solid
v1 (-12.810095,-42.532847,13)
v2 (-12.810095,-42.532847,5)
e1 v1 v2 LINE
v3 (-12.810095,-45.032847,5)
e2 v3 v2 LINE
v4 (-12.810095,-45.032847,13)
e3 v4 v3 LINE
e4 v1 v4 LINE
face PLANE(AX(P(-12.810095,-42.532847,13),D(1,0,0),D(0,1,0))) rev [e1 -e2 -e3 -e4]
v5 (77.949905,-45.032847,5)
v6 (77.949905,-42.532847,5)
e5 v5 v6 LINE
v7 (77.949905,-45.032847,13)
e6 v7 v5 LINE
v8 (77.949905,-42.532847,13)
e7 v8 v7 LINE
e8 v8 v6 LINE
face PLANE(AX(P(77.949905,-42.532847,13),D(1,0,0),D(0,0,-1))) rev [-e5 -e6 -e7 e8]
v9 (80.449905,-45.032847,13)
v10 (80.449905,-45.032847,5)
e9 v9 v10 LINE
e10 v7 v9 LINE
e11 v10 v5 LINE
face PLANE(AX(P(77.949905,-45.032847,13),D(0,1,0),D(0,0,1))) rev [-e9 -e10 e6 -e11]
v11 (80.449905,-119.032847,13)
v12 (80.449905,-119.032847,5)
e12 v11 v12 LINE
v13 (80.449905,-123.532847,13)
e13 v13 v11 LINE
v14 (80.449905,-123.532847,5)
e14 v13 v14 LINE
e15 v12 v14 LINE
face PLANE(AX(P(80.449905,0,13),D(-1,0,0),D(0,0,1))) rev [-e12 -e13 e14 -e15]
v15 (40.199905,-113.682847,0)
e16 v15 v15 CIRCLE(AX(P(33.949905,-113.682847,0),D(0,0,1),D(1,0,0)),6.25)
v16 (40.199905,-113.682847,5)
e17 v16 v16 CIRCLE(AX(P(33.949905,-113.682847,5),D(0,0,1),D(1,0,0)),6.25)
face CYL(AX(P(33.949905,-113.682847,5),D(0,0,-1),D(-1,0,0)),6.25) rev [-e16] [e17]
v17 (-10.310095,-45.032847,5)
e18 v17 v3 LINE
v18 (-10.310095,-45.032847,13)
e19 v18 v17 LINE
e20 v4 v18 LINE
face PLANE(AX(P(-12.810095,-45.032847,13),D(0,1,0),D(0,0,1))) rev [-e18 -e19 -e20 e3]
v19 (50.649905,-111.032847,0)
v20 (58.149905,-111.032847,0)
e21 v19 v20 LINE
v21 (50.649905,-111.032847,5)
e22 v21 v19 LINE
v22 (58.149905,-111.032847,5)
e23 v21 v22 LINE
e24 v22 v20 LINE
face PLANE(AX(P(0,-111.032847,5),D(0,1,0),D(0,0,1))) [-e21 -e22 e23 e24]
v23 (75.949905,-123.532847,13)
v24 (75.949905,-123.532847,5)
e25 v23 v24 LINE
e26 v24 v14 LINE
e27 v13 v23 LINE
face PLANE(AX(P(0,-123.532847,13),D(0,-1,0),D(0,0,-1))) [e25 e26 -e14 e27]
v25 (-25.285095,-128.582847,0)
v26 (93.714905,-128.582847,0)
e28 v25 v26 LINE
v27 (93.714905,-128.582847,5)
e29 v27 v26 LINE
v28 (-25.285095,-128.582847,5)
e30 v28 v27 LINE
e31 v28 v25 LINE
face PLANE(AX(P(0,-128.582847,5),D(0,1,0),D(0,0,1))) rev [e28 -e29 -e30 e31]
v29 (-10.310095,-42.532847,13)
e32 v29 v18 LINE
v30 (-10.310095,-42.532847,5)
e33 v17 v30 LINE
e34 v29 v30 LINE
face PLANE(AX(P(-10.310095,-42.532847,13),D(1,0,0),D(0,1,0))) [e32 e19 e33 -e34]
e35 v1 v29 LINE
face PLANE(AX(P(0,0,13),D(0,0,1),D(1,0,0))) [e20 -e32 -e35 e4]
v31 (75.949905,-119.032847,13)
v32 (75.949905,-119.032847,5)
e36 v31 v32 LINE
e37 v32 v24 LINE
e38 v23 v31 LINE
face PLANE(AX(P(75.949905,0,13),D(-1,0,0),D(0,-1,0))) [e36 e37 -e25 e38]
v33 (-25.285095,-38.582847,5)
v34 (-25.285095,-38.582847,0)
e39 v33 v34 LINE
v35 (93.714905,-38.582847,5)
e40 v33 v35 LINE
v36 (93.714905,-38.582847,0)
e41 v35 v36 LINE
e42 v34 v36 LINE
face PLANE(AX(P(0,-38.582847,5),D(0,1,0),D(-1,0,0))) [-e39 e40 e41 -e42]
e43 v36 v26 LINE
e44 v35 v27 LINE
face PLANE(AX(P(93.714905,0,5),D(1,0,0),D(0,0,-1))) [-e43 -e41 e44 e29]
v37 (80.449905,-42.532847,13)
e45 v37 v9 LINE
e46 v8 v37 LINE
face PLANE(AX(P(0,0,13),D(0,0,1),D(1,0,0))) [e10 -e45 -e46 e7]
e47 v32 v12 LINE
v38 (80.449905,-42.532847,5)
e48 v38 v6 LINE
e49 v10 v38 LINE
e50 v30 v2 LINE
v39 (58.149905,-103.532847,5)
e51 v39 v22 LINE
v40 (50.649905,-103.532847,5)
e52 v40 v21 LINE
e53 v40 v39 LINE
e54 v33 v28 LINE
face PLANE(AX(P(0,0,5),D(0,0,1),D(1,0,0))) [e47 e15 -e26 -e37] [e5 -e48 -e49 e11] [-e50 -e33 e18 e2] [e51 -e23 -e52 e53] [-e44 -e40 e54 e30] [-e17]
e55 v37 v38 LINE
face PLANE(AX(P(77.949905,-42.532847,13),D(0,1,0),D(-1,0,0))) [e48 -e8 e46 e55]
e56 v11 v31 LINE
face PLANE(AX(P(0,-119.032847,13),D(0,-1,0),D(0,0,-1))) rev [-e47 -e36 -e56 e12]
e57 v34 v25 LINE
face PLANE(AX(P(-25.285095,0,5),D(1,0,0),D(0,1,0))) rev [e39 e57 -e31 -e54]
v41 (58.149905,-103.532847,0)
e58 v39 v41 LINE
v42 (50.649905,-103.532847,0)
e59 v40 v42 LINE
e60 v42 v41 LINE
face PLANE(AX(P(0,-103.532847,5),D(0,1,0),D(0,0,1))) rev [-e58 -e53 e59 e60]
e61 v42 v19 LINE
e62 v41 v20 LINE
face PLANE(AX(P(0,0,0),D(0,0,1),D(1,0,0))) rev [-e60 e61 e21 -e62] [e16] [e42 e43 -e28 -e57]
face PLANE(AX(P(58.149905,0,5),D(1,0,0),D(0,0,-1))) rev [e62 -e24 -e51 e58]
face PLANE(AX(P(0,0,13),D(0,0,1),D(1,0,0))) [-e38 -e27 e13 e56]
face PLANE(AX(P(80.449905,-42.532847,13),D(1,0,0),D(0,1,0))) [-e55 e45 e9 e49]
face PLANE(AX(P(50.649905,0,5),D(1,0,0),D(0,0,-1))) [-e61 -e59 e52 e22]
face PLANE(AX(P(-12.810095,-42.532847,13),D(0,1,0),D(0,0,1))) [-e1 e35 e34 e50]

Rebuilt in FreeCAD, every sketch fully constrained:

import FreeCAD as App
import Part
import Sketcher
from FreeCAD import Vector

doc = App.newDocument("Part")
body = doc.addObject("PartDesign::Body", "Body")

# Sketch on XY plane
sketch1 = body.newObject("Sketcher::SketchObject", "Sketch")
sketch1.AttachmentSupport = (doc.getObject("XY_Plane"), [""])
sketch1.MapMode = "FlatFace"
sketch1.addGeometry(Part.LineSegment(Vector(-25, -39, 0), Vector(-25, -129, 0)), False)
sketch1.addGeometry(Part.LineSegment(Vector(-25, -129, 0), Vector(94, -129, 0)), False)
sketch1.addGeometry(Part.LineSegment(Vector(94, -129, 0), Vector(94, -39, 0)), False)
sketch1.addGeometry(Part.LineSegment(Vector(94, -39, 0), Vector(-25, -39, 0)), False)
sketch1.addGeometry(Part.Circle(Vector(34, -114, 0), Vector(0, 0, 1), 6), False)
sketch1.addGeometry(Part.LineSegment(Vector(58, -111, 0), Vector(51, -111, 0)), False)
sketch1.addGeometry(Part.LineSegment(Vector(51, -111, 0), Vector(51, -104, 0)), False)
sketch1.addGeometry(Part.LineSegment(Vector(51, -104, 0), Vector(58, -104, 0)), False)
sketch1.addGeometry(Part.LineSegment(Vector(58, -104, 0), Vector(58, -111, 0)), False)
sketch1.addConstraint(Sketcher.Constraint("Coincident", 0, 2, 1, 1))
sketch1.addConstraint(Sketcher.Constraint("Coincident", 1, 2, 2, 1))
sketch1.addConstraint(Sketcher.Constraint("Coincident", 2, 2, 3, 1))
sketch1.addConstraint(Sketcher.Constraint("Coincident", 3, 2, 0, 1))
sketch1.addConstraint(Sketcher.Constraint("Coincident", 5, 2, 6, 1))
sketch1.addConstraint(Sketcher.Constraint("Coincident", 6, 2, 7, 1))
sketch1.addConstraint(Sketcher.Constraint("Coincident", 7, 2, 8, 1))
sketch1.addConstraint(Sketcher.Constraint("Coincident", 8, 2, 5, 1))
sketch1.addConstraint(Sketcher.Constraint("Vertical", 0))
sketch1.addConstraint(Sketcher.Constraint("Horizontal", 1))
sketch1.addConstraint(Sketcher.Constraint("Vertical", 2))
sketch1.addConstraint(Sketcher.Constraint("Horizontal", 3))
sketch1.addConstraint(Sketcher.Constraint("Horizontal", 5))
sketch1.addConstraint(Sketcher.Constraint("Vertical", 6))
sketch1.addConstraint(Sketcher.Constraint("Horizontal", 7))
sketch1.addConstraint(Sketcher.Constraint("Vertical", 8))
sketch1.addConstraint(Sketcher.Constraint("Equal", 7, 6))
sketch1.addConstraint(Sketcher.Constraint("Diameter", 4, 12.5))
sketch1.addConstraint(Sketcher.Constraint("DistanceX", 1, 1, 1, 2, 119.0))
sketch1.addConstraint(Sketcher.Constraint("DistanceY", 0, 2, 0, 1, 90.0))
sketch1.addConstraint(Sketcher.Constraint("DistanceX", 5, 2, 5, 1, 7.5))
sketch1.addConstraint(Sketcher.Constraint("DistanceY", 0, 2, 4, 3, 14.9))
sketch1.addConstraint(Sketcher.Constraint("DistanceX", 4, 3, 5, 2, 16.7))
sketch1.addConstraint(Sketcher.Constraint("DistanceY", 4, 3, 5, 2, 2.65))
sketch1.addConstraint(Sketcher.Constraint("DistanceX", 0, 2, 4, 3, 59.235))
sketch1.addConstraint(Sketcher.Constraint("DistanceX", -1, 1, 4, 3, 33.949905))
sketch1.addConstraint(Sketcher.Constraint("DistanceY", 4, 3, -1, 1, 113.682847))
pad1 = body.newObject("PartDesign::Pad", "Pad")
pad1.Profile = sketch1
pad1.Length = 5

# Sketch on XY plane
sketch2 = body.newObject("Sketcher::SketchObject", "Sketch001")
sketch2.AttachmentSupport = (doc.getObject("XY_Plane"), [""])
sketch2.MapMode = "FlatFace"
sketch2.addGeometry(Part.LineSegment(Vector(75.9, -119, 0), Vector(75.9, -123.5, 0)), False)
sketch2.addGeometry(Part.LineSegment(Vector(75.9, -123.5, 0), Vector(80.4, -123.5, 0)), False)
sketch2.addGeometry(Part.LineSegment(Vector(80.4, -123.5, 0), Vector(80.4, -119, 0)), False)
sketch2.addGeometry(Part.LineSegment(Vector(80.4, -119, 0), Vector(75.9, -119, 0)), False)
sketch2.addGeometry(Part.LineSegment(Vector(-12.8, -42.5, 0), Vector(-12.8, -45, 0)), False)
sketch2.addGeometry(Part.LineSegment(Vector(-12.8, -45, 0), Vector(-10.3, -45, 0)), False)
sketch2.addGeometry(Part.LineSegment(Vector(-10.3, -45, 0), Vector(-10.3, -42.5, 0)), False)
sketch2.addGeometry(Part.LineSegment(Vector(-10.3, -42.5, 0), Vector(-12.8, -42.5, 0)), False)
sketch2.addGeometry(Part.LineSegment(Vector(77.9, -42.5, 0), Vector(77.9, -45, 0)), False)
sketch2.addGeometry(Part.LineSegment(Vector(77.9, -45, 0), Vector(80.4, -45, 0)), False)
sketch2.addGeometry(Part.LineSegment(Vector(80.4, -45, 0), Vector(80.4, -42.5, 0)), False)
sketch2.addGeometry(Part.LineSegment(Vector(80.4, -42.5, 0), Vector(77.9, -42.5, 0)), False)
sketch2.addConstraint(Sketcher.Constraint("Coincident", 0, 2, 1, 1))
sketch2.addConstraint(Sketcher.Constraint("Coincident", 1, 2, 2, 1))
sketch2.addConstraint(Sketcher.Constraint("Coincident", 2, 2, 3, 1))
sketch2.addConstraint(Sketcher.Constraint("Coincident", 3, 2, 0, 1))
sketch2.addConstraint(Sketcher.Constraint("Coincident", 4, 2, 5, 1))
sketch2.addConstraint(Sketcher.Constraint("Coincident", 5, 2, 6, 1))
sketch2.addConstraint(Sketcher.Constraint("Coincident", 6, 2, 7, 1))
sketch2.addConstraint(Sketcher.Constraint("Coincident", 7, 2, 4, 1))
sketch2.addConstraint(Sketcher.Constraint("Coincident", 8, 2, 9, 1))
sketch2.addConstraint(Sketcher.Constraint("Coincident", 9, 2, 10, 1))
sketch2.addConstraint(Sketcher.Constraint("Coincident", 10, 2, 11, 1))
sketch2.addConstraint(Sketcher.Constraint("Coincident", 11, 2, 8, 1))
sketch2.addConstraint(Sketcher.Constraint("Vertical", 0))
sketch2.addConstraint(Sketcher.Constraint("Horizontal", 1))
sketch2.addConstraint(Sketcher.Constraint("Vertical", 2))
sketch2.addConstraint(Sketcher.Constraint("Horizontal", 3))
sketch2.addConstraint(Sketcher.Constraint("Vertical", 4))
sketch2.addConstraint(Sketcher.Constraint("Horizontal", 5))
sketch2.addConstraint(Sketcher.Constraint("Vertical", 6))
sketch2.addConstraint(Sketcher.Constraint("Horizontal", 7))
sketch2.addConstraint(Sketcher.Constraint("Vertical", 8))
sketch2.addConstraint(Sketcher.Constraint("Horizontal", 9))
sketch2.addConstraint(Sketcher.Constraint("Vertical", 10))
sketch2.addConstraint(Sketcher.Constraint("Horizontal", 11))
sketch2.addConstraint(Sketcher.Constraint("Horizontal", 5, 2, 8, 2))
sketch2.addConstraint(Sketcher.Constraint("Horizontal", 7, 2, 10, 2))
sketch2.addConstraint(Sketcher.Constraint("Vertical", 2, 2, 9, 2))
sketch2.addConstraint(Sketcher.Constraint("Equal", 7, 9))
sketch2.addConstraint(Sketcher.Constraint("Equal", 3, 0))
sketch2.addConstraint(Sketcher.Constraint("Equal", 11, 4))
sketch2.addConstraint(Sketcher.Constraint("DistanceX", 1, 1, 1, 2, 4.5))
sketch2.addConstraint(Sketcher.Constraint("DistanceX", 5, 1, 5, 2, 2.5))
sketch2.addConstraint(Sketcher.Constraint("DistanceY", 3, 2, 4, 2, 74.0))
sketch2.addConstraint(Sketcher.Constraint("DistanceX", 4, 2, 3, 2, 88.76))
sketch2.addConstraint(Sketcher.Constraint("DistanceX", -1, 1, 0, 2, 75.949905))
sketch2.addConstraint(Sketcher.Constraint("DistanceY", 0, 2, -1, 1, 123.532847))
pad2 = body.newObject("PartDesign::Pad", "Pad001")
pad2.Profile = sketch2
pad2.Length = 13

doc.recompute()
